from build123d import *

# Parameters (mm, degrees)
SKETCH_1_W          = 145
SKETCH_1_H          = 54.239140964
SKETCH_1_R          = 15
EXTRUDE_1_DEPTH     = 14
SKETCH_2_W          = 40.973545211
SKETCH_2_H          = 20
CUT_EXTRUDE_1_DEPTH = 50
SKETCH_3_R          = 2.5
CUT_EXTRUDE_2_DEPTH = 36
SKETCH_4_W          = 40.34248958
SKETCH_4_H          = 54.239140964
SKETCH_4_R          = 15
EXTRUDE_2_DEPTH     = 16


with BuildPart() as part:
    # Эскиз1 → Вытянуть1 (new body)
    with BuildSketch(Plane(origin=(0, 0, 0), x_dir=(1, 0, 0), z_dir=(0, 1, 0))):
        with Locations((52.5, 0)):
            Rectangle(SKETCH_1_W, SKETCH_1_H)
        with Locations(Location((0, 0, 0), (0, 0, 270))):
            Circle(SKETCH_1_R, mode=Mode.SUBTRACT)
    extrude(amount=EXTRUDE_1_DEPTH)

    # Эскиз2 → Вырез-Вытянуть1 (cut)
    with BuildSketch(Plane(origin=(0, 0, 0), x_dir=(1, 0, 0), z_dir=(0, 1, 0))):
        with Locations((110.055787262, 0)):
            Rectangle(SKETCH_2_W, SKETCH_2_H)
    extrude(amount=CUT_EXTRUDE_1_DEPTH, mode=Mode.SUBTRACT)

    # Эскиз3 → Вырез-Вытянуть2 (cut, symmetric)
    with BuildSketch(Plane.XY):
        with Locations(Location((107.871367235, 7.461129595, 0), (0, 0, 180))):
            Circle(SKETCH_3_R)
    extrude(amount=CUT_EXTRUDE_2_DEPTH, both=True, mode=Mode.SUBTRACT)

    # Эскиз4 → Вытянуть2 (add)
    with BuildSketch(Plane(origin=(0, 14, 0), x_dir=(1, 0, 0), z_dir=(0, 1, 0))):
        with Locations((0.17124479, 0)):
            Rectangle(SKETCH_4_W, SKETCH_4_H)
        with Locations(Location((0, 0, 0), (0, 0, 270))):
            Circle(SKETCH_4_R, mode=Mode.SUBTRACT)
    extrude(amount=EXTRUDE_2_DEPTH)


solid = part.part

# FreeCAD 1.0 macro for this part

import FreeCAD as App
import Part
import Sketcher
from FreeCAD import Vector


def add_polygon(sketch, points):
    """Adds a closed chain of lines whose ends are joined by coincident constraints."""
    first, n = sketch.GeometryCount, len(points)
    for a, b in zip(points, points[1:] + points[:1]):
        sketch.addGeometry(Part.LineSegment(App.Vector(*a, 0), App.Vector(*b, 0)), False)
    for i in range(n):
        sketch.addConstraint(Sketcher.Constraint("Coincident", first + i, 2, first + (i + 1) % n, 1))

doc = App.newDocument("Part")
body = doc.addObject("PartDesign::Body", "Body")

sketch1 = doc.addObject("Sketcher::SketchObject", "Sketch")
body.addObject(sketch1)
sketch1.AttachmentSupport = (doc.XZ_Plane, [""])
sketch1.MapMode = "FlatFace"
add_polygon(sketch1, [(-20, -27), (-20, 27), (125, 27), (125, -27)])
sketch1.addGeometry(Part.Circle(Vector(0, 0, 0), Vector(0, 0, 1), 15), False)
sketch1.addConstraint(Sketcher.Constraint("Vertical", 0))
sketch1.addConstraint(Sketcher.Constraint("Horizontal", 1))
sketch1.addConstraint(Sketcher.Constraint("Vertical", 2))
sketch1.addConstraint(Sketcher.Constraint("Horizontal", 3))
sketch1.addConstraint(Sketcher.Constraint("Coincident", 4, 3, -1, 1))
sketch1.addConstraint(Sketcher.Constraint("Diameter", 4, 30.0))
sketch1.addConstraint(Sketcher.Constraint("DistanceX", 1, 1, 1, 2, 145.0))
sketch1.addConstraint(Sketcher.Constraint("DistanceX", 0, 2, -1, 1, 20.0))
sketch1.addConstraint(Sketcher.Constraint("DistanceY", 0, 1, 0, 2, 54.239141))
sketch1.addConstraint(Sketcher.Constraint("DistanceY", -1, 1, 0, 2, 27.11957))
pad1 = doc.addObject("PartDesign::Pad", "Pad")
body.addObject(pad1)
pad1.Profile = sketch1
pad1.Length = 14
pad1.Reversed = True

sketch2 = doc.addObject("Sketcher::SketchObject", "Sketch001")
body.addObject(sketch2)
sketch2.AttachmentSupport = (doc.XZ_Plane, [""])
sketch2.MapMode = "FlatFace"
add_polygon(sketch2, [(90, -10), (90, 10), (131, 10), (131, -10)])
sketch2.addConstraint(Sketcher.Constraint("Vertical", 0))
sketch2.addConstraint(Sketcher.Constraint("Horizontal", 1))
sketch2.addConstraint(Sketcher.Constraint("Vertical", 2))
sketch2.addConstraint(Sketcher.Constraint("Horizontal", 3))
sketch2.addConstraint(Sketcher.Constraint("DistanceY", 0, 1, 0, 2, 20.0))
sketch2.addConstraint(Sketcher.Constraint("DistanceY", -1, 1, 0, 2, 10.0))
sketch2.addConstraint(Sketcher.Constraint("DistanceX", 1, 1, 1, 2, 40.973545))
sketch2.addConstraint(Sketcher.Constraint("DistanceX", -1, 1, 1, 2, 130.54256))
pocket1 = doc.addObject("PartDesign::Pocket", "Pocket")
body.addObject(pocket1)
pocket1.Profile = sketch2
pocket1.Length = 50

sketch3 = doc.addObject("Sketcher::SketchObject", "Sketch002")
body.addObject(sketch3)
sketch3.AttachmentSupport = (doc.XY_Plane, [""])
sketch3.MapMode = "FlatFace"
sketch3.addGeometry(Part.Circle(Vector(107.9, 7.5, 0), Vector(0, 0, 1), 2.5), False)
sketch3.addConstraint(Sketcher.Constraint("Diameter", 0, 5.0))
sketch3.addConstraint(Sketcher.Constraint("DistanceY", -1, 1, 0, 3, 7.46113))
sketch3.addConstraint(Sketcher.Constraint("DistanceX", -1, 1, 0, 3, 107.871367))
pocket2 = doc.addObject("PartDesign::Pocket", "Pocket001")
body.addObject(pocket2)
pocket2.Profile = sketch3
pocket2.Length = 72
pocket2.Midplane = True

sketch4 = doc.addObject("Sketcher::SketchObject", "Sketch003")
body.addObject(sketch4)
sketch4.AttachmentSupport = (doc.XZ_Plane, [""])
sketch4.MapMode = "FlatFace"
sketch4.AttachmentOffset = App.Placement(Vector(0, 0, -14), App.Rotation())
add_polygon(sketch4, [(-20, -27), (-20, 27), (20, 27), (20, -27)])
sketch4.addGeometry(Part.Circle(Vector(0, 0, 0), Vector(0, 0, 1), 15), False)
sketch4.addConstraint(Sketcher.Constraint("Vertical", 0))
sketch4.addConstraint(Sketcher.Constraint("Horizontal", 1))
sketch4.addConstraint(Sketcher.Constraint("Vertical", 2))
sketch4.addConstraint(Sketcher.Constraint("Horizontal", 3))
sketch4.addConstraint(Sketcher.Constraint("Coincident", 4, 3, -1, 1))
sketch4.addConstraint(Sketcher.Constraint("Diameter", 4, 30.0))
sketch4.addConstraint(Sketcher.Constraint("DistanceX", 0, 2, -1, 1, 20.0))
sketch4.addConstraint(Sketcher.Constraint("DistanceX", 1, 1, 1, 2, 40.34249))
sketch4.addConstraint(Sketcher.Constraint("DistanceY", 0, 1, 0, 2, 54.239141))
sketch4.addConstraint(Sketcher.Constraint("DistanceY", -1, 1, 0, 2, 27.11957))
pad2 = doc.addObject("PartDesign::Pad", "Pad001")
body.addObject(pad2)
pad2.Profile = sketch4
pad2.Length = 16
pad2.Reversed = True

doc.recompute()
